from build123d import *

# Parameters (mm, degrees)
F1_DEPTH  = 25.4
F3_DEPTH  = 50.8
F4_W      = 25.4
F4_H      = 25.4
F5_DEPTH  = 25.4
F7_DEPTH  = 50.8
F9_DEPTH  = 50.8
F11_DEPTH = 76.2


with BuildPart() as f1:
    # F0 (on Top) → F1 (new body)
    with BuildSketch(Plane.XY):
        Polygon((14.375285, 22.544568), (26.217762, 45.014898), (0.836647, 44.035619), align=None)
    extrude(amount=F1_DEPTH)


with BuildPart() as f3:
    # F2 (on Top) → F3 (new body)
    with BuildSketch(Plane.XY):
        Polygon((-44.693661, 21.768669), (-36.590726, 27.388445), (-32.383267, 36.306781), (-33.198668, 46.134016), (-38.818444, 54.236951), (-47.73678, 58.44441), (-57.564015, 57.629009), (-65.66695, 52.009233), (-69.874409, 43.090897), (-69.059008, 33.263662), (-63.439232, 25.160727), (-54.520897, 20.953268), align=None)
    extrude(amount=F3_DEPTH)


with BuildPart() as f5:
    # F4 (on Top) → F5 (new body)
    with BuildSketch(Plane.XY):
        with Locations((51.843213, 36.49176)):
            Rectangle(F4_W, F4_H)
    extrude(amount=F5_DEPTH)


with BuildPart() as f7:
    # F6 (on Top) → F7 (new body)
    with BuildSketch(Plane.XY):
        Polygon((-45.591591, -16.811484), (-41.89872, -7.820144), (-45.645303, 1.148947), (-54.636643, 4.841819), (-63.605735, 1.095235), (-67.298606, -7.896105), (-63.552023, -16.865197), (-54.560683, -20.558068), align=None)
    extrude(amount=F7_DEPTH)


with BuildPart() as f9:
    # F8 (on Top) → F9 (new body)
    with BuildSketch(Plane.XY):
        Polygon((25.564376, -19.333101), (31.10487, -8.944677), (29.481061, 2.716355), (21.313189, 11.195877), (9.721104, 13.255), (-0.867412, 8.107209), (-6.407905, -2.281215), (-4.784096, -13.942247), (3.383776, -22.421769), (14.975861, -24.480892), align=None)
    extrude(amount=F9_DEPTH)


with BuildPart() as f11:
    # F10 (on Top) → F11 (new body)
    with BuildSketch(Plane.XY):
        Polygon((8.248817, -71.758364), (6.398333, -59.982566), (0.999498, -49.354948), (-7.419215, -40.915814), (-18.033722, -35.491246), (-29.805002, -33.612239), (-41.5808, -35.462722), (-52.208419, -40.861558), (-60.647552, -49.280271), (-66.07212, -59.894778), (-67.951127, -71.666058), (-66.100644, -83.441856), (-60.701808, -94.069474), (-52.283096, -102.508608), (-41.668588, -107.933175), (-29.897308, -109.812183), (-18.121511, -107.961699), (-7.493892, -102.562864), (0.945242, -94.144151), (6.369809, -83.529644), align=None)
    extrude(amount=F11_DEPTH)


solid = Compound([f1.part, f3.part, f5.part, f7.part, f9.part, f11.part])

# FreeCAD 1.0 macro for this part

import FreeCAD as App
import Part
import Sketcher
from FreeCAD import Vector
Q = App.Units.Quantity


def add_polygon(sketch, points):
    """Adds a closed chain of lines whose ends are joined by coincident constraints."""
    first, n = sketch.GeometryCount, len(points)
    for a, b in zip(points, points[1:] + points[:1]):
        sketch.addGeometry(Part.LineSegment(App.Vector(*a, 0), App.Vector(*b, 0)), False)
    for i in range(n):
        sketch.addConstraint(Sketcher.Constraint("Coincident", first + i, 2, first + (i + 1) % n, 1))

doc = App.newDocument("Part")
body = doc.addObject("PartDesign::Body", "Body")

# Sketch on XY plane
sketch1 = body.newObject("Sketcher::SketchObject", "Sketch")
sketch1.AttachmentSupport = (doc.getObject("XY_Plane"), [""])
sketch1.MapMode = "FlatFace"
add_polygon(sketch1, [(14, 23), (26, 45), (1, 44)])  # lines 0-2
sketch1.addConstraint(Sketcher.Constraint("Equal", 0, 1))
sketch1.addConstraint(Sketcher.Constraint("Equal", 1, 2))
sketch1.addConstraint(Sketcher.Constraint("Distance", 0, Q("1 in")))
sketch1.addConstraint(Sketcher.Constraint("DistanceY", -1, 1, 0, 2, 45.014898))
sketch1.addConstraint(Sketcher.Constraint("DistanceY", -1, 1, 1, 2, 44.035619))
sketch1.addConstraint(Sketcher.Constraint("DistanceX", -1, 1, 0, 2, 26.217762))
pad1 = body.newObject("PartDesign::Pad", "Pad")
pad1.Profile = sketch1
pad1.Length = Q("1 in")
body2 = doc.addObject("PartDesign::Body", "Body001")

# Sketch on XY plane
sketch2 = body2.newObject("Sketcher::SketchObject", "Sketch001")
sketch2.AttachmentSupport = (doc.getObject("XY_Plane001"), [""])
sketch2.MapMode = "FlatFace"
add_polygon(sketch2, [(-45, 22), (-37, 27), (-32, 36), (-33, 46), (-39, 54), (-48, 58), (-58, 58), (-66, 52), (-70, 43), (-69, 33), (-63, 25), (-55, 21)])  # lines 0-11
sketch2.addConstraint(Sketcher.Constraint("Perpendicular", 0, 3))
sketch2.addConstraint(Sketcher.Constraint("Perpendicular", 1, 4))
sketch2.addConstraint(Sketcher.Constraint("Perpendicular", 2, 5))
sketch2.addConstraint(Sketcher.Constraint("Perpendicular", 3, 6))
sketch2.addConstraint(Sketcher.Constraint("Perpendicular", 4, 7))
sketch2.addConstraint(Sketcher.Constraint("Perpendicular", 5, 8))
sketch2.addConstraint(Sketcher.Constraint("Perpendicular", 6, 9))
sketch2.addConstraint(Sketcher.Constraint("Perpendicular", 7, 10))
sketch2.addConstraint(Sketcher.Constraint("Perpendicular", 8, 11))
sketch2.addConstraint(Sketcher.Constraint("Equal", 0, 1))
sketch2.addConstraint(Sketcher.Constraint("Equal", 1, 2))
sketch2.addConstraint(Sketcher.Constraint("Equal", 2, 3))
sketch2.addConstraint(Sketcher.Constraint("Equal", 3, 4))
sketch2.addConstraint(Sketcher.Constraint("Equal", 4, 5))
sketch2.addConstraint(Sketcher.Constraint("Equal", 5, 6))
sketch2.addConstraint(Sketcher.Constraint("Equal", 6, 7))
sketch2.addConstraint(Sketcher.Constraint("Equal", 7, 8))
sketch2.addConstraint(Sketcher.Constraint("Equal", 8, 9))
sketch2.addConstraint(Sketcher.Constraint("DistanceY", -1, 1, 2, 2, Q("1.8162998 in")))
sketch2.addConstraint(Sketcher.Constraint("DistanceX", 5, 2, -1, 1, Q("2.2662998 in")))
sketch2.addConstraint(Sketcher.Constraint("DistanceX", 2, 2, 1, 2, 0.815401))
sketch2.addConstraint(Sketcher.Constraint("DistanceY", -1, 1, 1, 2, 36.306781))
sketch2.addConstraint(Sketcher.Constraint("DistanceY", -1, 1, 3, 2, 54.236951))
sketch2.addConstraint(Sketcher.Constraint("DistanceY", -1, 1, 4, 2, 58.44441))
pad2 = body2.newObject("PartDesign::Pad", "Pad001")
pad2.Profile = sketch2
pad2.Length = Q("2 in")
body3 = doc.addObject("PartDesign::Body", "Body002")

# Sketch on XY plane
sketch3 = body3.newObject("Sketcher::SketchObject", "Sketch002")
sketch3.AttachmentSupport = (doc.getObject("XY_Plane002"), [""])
sketch3.MapMode = "FlatFace"
add_polygon(sketch3, [(39, 49), (39, 24), (65, 24), (65, 49)])  # lines 0-3
sketch3.addConstraint(Sketcher.Constraint("Vertical", 0))
sketch3.addConstraint(Sketcher.Constraint("Horizontal", 1))
sketch3.addConstraint(Sketcher.Constraint("Vertical", 2))
sketch3.addConstraint(Sketcher.Constraint("Horizontal", 3))
sketch3.addConstraint(Sketcher.Constraint("Equal", 3, 0))
sketch3.addConstraint(Sketcher.Constraint("DistanceX", 1, 1, 1, 2, Q("1 in")))
sketch3.addConstraint(Sketcher.Constraint("DistanceY", -1, 1, 0, 2, 23.79176))
sketch3.addConstraint(Sketcher.Constraint("DistanceX", -1, 1, 0, 2, 39.143213))
pad3 = body3.newObject("PartDesign::Pad", "Pad002")
pad3.Profile = sketch3
pad3.Length = Q("1 in")
body4 = doc.addObject("PartDesign::Body", "Body003")

# Sketch on XY plane
sketch4 = body4.newObject("Sketcher::SketchObject", "Sketch003")
sketch4.AttachmentSupport = (doc.getObject("XY_Plane003"), [""])
sketch4.MapMode = "FlatFace"
add_polygon(sketch4, [(-46, -17), (-42, -8), (-46, 1), (-55, 5), (-64, 1), (-67, -8), (-64, -17), (-55, -21)])  # lines 0-7
sketch4.addConstraint(Sketcher.Constraint("Perpendicular", 0, 2))
sketch4.addConstraint(Sketcher.Constraint("Perpendicular", 1, 3))
sketch4.addConstraint(Sketcher.Constraint("Perpendicular", 2, 4))
sketch4.addConstraint(Sketcher.Constraint("Perpendicular", 3, 5))
sketch4.addConstraint(Sketcher.Constraint("Perpendicular", 4, 6))
sketch4.addConstraint(Sketcher.Constraint("Perpendicular", 5, 7))
sketch4.addConstraint(Sketcher.Constraint("Equal", 0, 1))
sketch4.addConstraint(Sketcher.Constraint("Equal", 1, 2))
sketch4.addConstraint(Sketcher.Constraint("Equal", 2, 3))
sketch4.addConstraint(Sketcher.Constraint("Equal", 3, 4))
sketch4.addConstraint(Sketcher.Constraint("Equal", 4, 5))
sketch4.addConstraint(Sketcher.Constraint("Distance", 0, 9.720159))
sketch4.addConstraint(Sketcher.Constraint("DistanceX", 0, 2, -1, 1, 41.89872))
sketch4.addConstraint(Sketcher.Constraint("DistanceY", -1, 1, 2, 2, 4.841819))
sketch4.addConstraint(Sketcher.Constraint("DistanceX", 7, 2, -1, 1, 45.591591))
sketch4.addConstraint(Sketcher.Constraint("DistanceY", 0, 2, 1, 2, 8.969091))
pad4 = body4.newObject("PartDesign::Pad", "Pad003")
pad4.Profile = sketch4
pad4.Length = Q("2 in")
body5 = doc.addObject("PartDesign::Body", "Body004")

# Sketch on XY plane
sketch5 = body5.newObject("Sketcher::SketchObject", "Sketch004")
sketch5.AttachmentSupport = (doc.getObject("XY_Plane004"), [""])
sketch5.MapMode = "FlatFace"
add_polygon(sketch5, [(26, -19), (31, -9), (29, 3), (21, 11), (10, 13), (-1, 8), (-6, -2), (-5, -14), (3, -22), (15, -24)])  # lines 0-9
sketch5.addConstraint(Sketcher.Constraint("Parallel", 0, 5))
sketch5.addConstraint(Sketcher.Constraint("Parallel", 1, 6))
sketch5.addConstraint(Sketcher.Constraint("Parallel", 2, 7))
sketch5.addConstraint(Sketcher.Constraint("Parallel", 3, 8))
sketch5.addConstraint(Sketcher.Constraint("Parallel", 4, 9))
sketch5.addConstraint(Sketcher.Constraint("Equal", 0, 1))
sketch5.addConstraint(Sketcher.Constraint("Equal", 1, 2))
sketch5.addConstraint(Sketcher.Constraint("Equal", 2, 3))
sketch5.addConstraint(Sketcher.Constraint("Equal", 3, 4))
sketch5.addConstraint(Sketcher.Constraint("Equal", 4, 5))
sketch5.addConstraint(Sketcher.Constraint("Equal", 5, 6))
sketch5.addConstraint(Sketcher.Constraint("Equal", 6, 7))
sketch5.addConstraint(Sketcher.Constraint("DistanceX", 6, 2, 4, 2, Q("0.1542002 in")))
sketch5.addConstraint(Sketcher.Constraint("DistanceY", -1, 1, 3, 2, 13.255))
sketch5.addConstraint(Sketcher.Constraint("DistanceY", 9, 2, -1, 1, 19.333101))
sketch5.addConstraint(Sketcher.Constraint("DistanceX", 4, 2, 2, 2, 22.180601))
sketch5.addConstraint(Sketcher.Constraint("DistanceX", 6, 2, 3, 2, 14.5052))
sketch5.addConstraint(Sketcher.Constraint("DistanceX", -1, 1, 0, 2, 31.10487))
sketch5.addConstraint(Sketcher.Constraint("DistanceX", -1, 1, 1, 2, 29.481061))
sketch5.addConstraint(Sketcher.Constraint("DistanceX", -1, 1, 2, 2, 21.313189))
pad5 = body5.newObject("PartDesign::Pad", "Pad004")
pad5.Profile = sketch5
pad5.Length = Q("2 in")
body6 = doc.addObject("PartDesign::Body", "Body005")

# Sketch on XY plane
sketch6 = body6.newObject("Sketcher::SketchObject", "Sketch005")
sketch6.AttachmentSupport = (doc.getObject("XY_Plane005"), [""])
sketch6.MapMode = "FlatFace"
add_polygon(sketch6, [(8, -72), (6, -60), (1, -49), (-7, -41), (-18, -35), (-30, -34), (-42, -35), (-52, -41), (-61, -49), (-66, -60), (-68, -72), (-66, -83), (-61, -94), (-52, -103), (-42, -108), (-30, -110), (-18, -108), (-7, -103), (1, -94), (6, -84)])  # lines 0-19
sketch6.addConstraint(Sketcher.Constraint("Perpendicular", 0, 5))
sketch6.addConstraint(Sketcher.Constraint("Perpendicular", 1, 6))
sketch6.addConstraint(Sketcher.Constraint("Perpendicular", 2, 7))
sketch6.addConstraint(Sketcher.Constraint("Perpendicular", 3, 8))
sketch6.addConstraint(Sketcher.Constraint("Perpendicular", 4, 9))
sketch6.addConstraint(Sketcher.Constraint("Perpendicular", 5, 10))
sketch6.addConstraint(Sketcher.Constraint("Perpendicular", 6, 11))
sketch6.addConstraint(Sketcher.Constraint("Perpendicular", 7, 12))
sketch6.addConstraint(Sketcher.Constraint("Perpendicular", 8, 13))
sketch6.addConstraint(Sketcher.Constraint("Perpendicular", 9, 14))
sketch6.addConstraint(Sketcher.Constraint("Perpendicular", 10, 15))
sketch6.addConstraint(Sketcher.Constraint("Perpendicular", 11, 16))
sketch6.addConstraint(Sketcher.Constraint("Perpendicular", 12, 17))
sketch6.addConstraint(Sketcher.Constraint("Perpendicular", 13, 18))
sketch6.addConstraint(Sketcher.Constraint("Perpendicular", 14, 19))
sketch6.addConstraint(Sketcher.Constraint("Equal", 0, 1))
sketch6.addConstraint(Sketcher.Constraint("Equal", 1, 2))
sketch6.addConstraint(Sketcher.Constraint("Equal", 2, 3))
sketch6.addConstraint(Sketcher.Constraint("Equal", 3, 4))
sketch6.addConstraint(Sketcher.Constraint("Equal", 4, 5))
sketch6.addConstraint(Sketcher.Constraint("Equal", 5, 6))
sketch6.addConstraint(Sketcher.Constraint("Equal", 6, 7))
sketch6.addConstraint(Sketcher.Constraint("Equal", 7, 8))
sketch6.addConstraint(Sketcher.Constraint("Equal", 8, 9))
sketch6.addConstraint(Sketcher.Constraint("Equal", 9, 10))
sketch6.addConstraint(Sketcher.Constraint("Equal", 10, 11))
sketch6.addConstraint(Sketcher.Constraint("Equal", 11, 12))
sketch6.addConstraint(Sketcher.Constraint("Equal", 12, 13))
sketch6.addConstraint(Sketcher.Constraint("Equal", 13, 14))
sketch6.addConstraint(Sketcher.Constraint("Equal", 14, 15))
sketch6.addConstraint(Sketcher.Constraint("Equal", 15, 16))
sketch6.addConstraint(Sketcher.Constraint("Equal", 16, 17))
sketch6.addConstraint(Sketcher.Constraint("DistanceX", 6, 2, 1, 2, Q("2.0947999 in")))
sketch6.addConstraint(Sketcher.Constraint("DistanceX", 5, 2, -1, 1, 41.5808))
sketch6.addConstraint(Sketcher.Constraint("DistanceY", 15, 2, -1, 1, 107.961699))
sketch6.addConstraint(Sketcher.Constraint("DistanceX", 4, 2, 1, 2, 30.8045))
sketch6.addConstraint(Sketcher.Constraint("DistanceX", 5, 2, 4, 2, 11.775798))
sketch6.addConstraint(Sketcher.Constraint("DistanceX", 8, 2, 6, 2, 13.863701))
sketch6.addConstraint(Sketcher.Constraint("DistanceY", 4, 2, -1, 1, 33.612239))
sketch6.addConstraint(Sketcher.Constraint("DistanceY", 6, 2, -1, 1, 40.861558))
pad6 = body6.newObject("PartDesign::Pad", "Pad005")
pad6.Profile = sketch6
pad6.Length = Q("3 in")

doc.recompute()
